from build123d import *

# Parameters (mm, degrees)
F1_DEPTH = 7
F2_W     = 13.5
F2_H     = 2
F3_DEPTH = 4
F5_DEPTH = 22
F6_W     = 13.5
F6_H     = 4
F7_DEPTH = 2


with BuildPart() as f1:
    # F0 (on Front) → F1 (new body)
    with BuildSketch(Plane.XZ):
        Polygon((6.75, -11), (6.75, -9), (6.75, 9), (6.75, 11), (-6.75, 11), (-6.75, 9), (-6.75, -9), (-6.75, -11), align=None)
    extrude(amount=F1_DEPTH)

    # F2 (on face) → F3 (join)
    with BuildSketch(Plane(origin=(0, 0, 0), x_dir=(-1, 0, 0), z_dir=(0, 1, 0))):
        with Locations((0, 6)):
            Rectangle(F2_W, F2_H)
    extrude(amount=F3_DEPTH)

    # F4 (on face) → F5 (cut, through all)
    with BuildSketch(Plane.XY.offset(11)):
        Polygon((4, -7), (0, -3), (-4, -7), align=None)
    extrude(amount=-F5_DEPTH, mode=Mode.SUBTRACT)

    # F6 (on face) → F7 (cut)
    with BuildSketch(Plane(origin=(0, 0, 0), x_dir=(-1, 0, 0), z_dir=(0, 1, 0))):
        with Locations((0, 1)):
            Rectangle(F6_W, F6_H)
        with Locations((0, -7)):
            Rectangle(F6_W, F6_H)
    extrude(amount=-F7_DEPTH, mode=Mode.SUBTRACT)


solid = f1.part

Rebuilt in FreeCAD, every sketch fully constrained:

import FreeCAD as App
import Part
import Sketcher


def add_polygon(sketch, points):
    """Adds a closed chain of lines whose ends are joined by coincident constraints."""
    first, n = sketch.GeometryCount, len(points)
    for a, b in zip(points, points[1:] + points[:1]):
        sketch.addGeometry(Part.LineSegment(App.Vector(*a, 0), App.Vector(*b, 0)), False)
    for i in range(n):
        sketch.addConstraint(Sketcher.Constraint("Coincident", first + i, 2, first + (i + 1) % n, 1))

doc = App.newDocument("Part")
body = doc.addObject("PartDesign::Body", "Body")

# Sketch on XZ plane
sketch1 = doc.addObject("Sketcher::SketchObject", "Sketch")
body.addObject(sketch1)
sketch1.AttachmentSupport = (doc.XZ_Plane, [""])
sketch1.MapMode = "FlatFace"
add_polygon(sketch1, [(7, -11), (7, 11), (-7, 11), (-7, -11)])  # lines 0-3
sketch1.addConstraint([
    Sketcher.Constraint("Vertical", 0),
    Sketcher.Constraint("Horizontal", 1),
    Sketcher.Constraint("Vertical", 2),
    Sketcher.Constraint("Horizontal", 3),
    Sketcher.Constraint("Symmetric", 0, 2, 2, 2, -1, 1),
    Sketcher.Constraint("DistanceY", 0, 1, 0, 2, 22.0),
    Sketcher.Constraint("DistanceX", 1, 2, 1, 1, 13.5),
])
pad1 = doc.addObject("PartDesign::Pad", "Pad")
body.addObject(pad1)
pad1.Profile = sketch1
pad1.Length = 7

# Sketch on XZ plane
sketch2 = doc.addObject("Sketcher::SketchObject", "Sketch001")
body.addObject(sketch2)
sketch2.AttachmentSupport = (doc.XZ_Plane, [""])
sketch2.MapMode = "FlatFace"
add_polygon(sketch2, [(6.8, 7), (6.8, 5), (-6.8, 5), (-6.8, 7)])  # lines 0-3
sketch2.addConstraint([
    Sketcher.Constraint("Vertical", 0),
    Sketcher.Constraint("Horizontal", 1),
    Sketcher.Constraint("Vertical", 2),
    Sketcher.Constraint("Horizontal", 3),
    Sketcher.Constraint("DistanceY", 0, 2, 0, 1, 2.0),
    Sketcher.Constraint("DistanceX", 1, 2, 1, 1, 13.5),
    Sketcher.Constraint("DistanceY", -1, 1, 0, 2, 5.0),
    Sketcher.Constraint("DistanceX", -1, 1, 0, 2, 6.75),
])
pad2 = doc.addObject("PartDesign::Pad", "Pad001")
body.addObject(pad2)
pad2.Profile = sketch2
pad2.Length = 4
pad2.Reversed = True

# Sketch on XY plane
sketch3 = doc.addObject("Sketcher::SketchObject", "Sketch002")
body.addObject(sketch3)
sketch3.AttachmentSupport = (doc.XY_Plane, [""])
sketch3.MapMode = "FlatFace"
sketch3.AttachmentOffset = App.Placement(App.Vector(0, 0, 11), App.Rotation())
add_polygon(sketch3, [(4, -7), (0, -3), (-4, -7)])  # lines 0-2
sketch3.addConstraint([
    Sketcher.Constraint("Horizontal", 2),
    Sketcher.Constraint("PointOnObject", 0, 2, -2),
    Sketcher.Constraint("Perpendicular", 0, 1),
    Sketcher.Constraint("Equal", 0, 1),
    Sketcher.Constraint("DistanceX", 2, 1, 2, 2, 8.0),
    Sketcher.Constraint("DistanceY", 0, 2, -1, 1, 3.0),
])
pocket1 = doc.addObject("PartDesign::Pocket", "Pocket")
body.addObject(pocket1)
pocket1.Profile = sketch3
pocket1.Type = "ThroughAll"

# Sketch on XZ plane
sketch4 = doc.addObject("Sketcher::SketchObject", "Sketch003")
body.addObject(sketch4)
sketch4.AttachmentSupport = (doc.XZ_Plane, [""])
sketch4.MapMode = "FlatFace"
add_polygon(sketch4, [(6.8, 3), (6.8, -1), (-6.8, -1), (-6.8, 3)])  # lines 0-3
add_polygon(sketch4, [(6.8, -5), (6.8, -9), (-6.8, -9), (-6.8, -5)])  # lines 4-7
sketch4.addConstraint([
    Sketcher.Constraint("Vertical", 0),
    Sketcher.Constraint("Horizontal", 1),
    Sketcher.Constraint("Vertical", 2),
    Sketcher.Constraint("Horizontal", 3),
    Sketcher.Constraint("Vertical", 4),
    Sketcher.Constraint("Horizontal", 5),
    Sketcher.Constraint("Vertical", 6),
    Sketcher.Constraint("Horizontal", 7),
    Sketcher.Constraint("Vertical", 3, 2, 4, 2),
    Sketcher.Constraint("Vertical", 2, 2, 5, 2),
    Sketcher.Constraint("Equal", 2, 4),
    Sketcher.Constraint("DistanceY", 0, 2, 0, 1, 4.0),
    Sketcher.Constraint("DistanceX", 1, 2, 1, 1, 13.5),
    Sketcher.Constraint("DistanceY", 0, 2, -1, 1, 1.0),
    Sketcher.Constraint("DistanceY", 4, 2, -1, 1, 9.0),
    Sketcher.Constraint("DistanceX", -1, 1, 0, 2, 6.75),
])
pocket2 = doc.addObject("PartDesign::Pocket", "Pocket001")
body.addObject(pocket2)
pocket2.Profile = sketch4
pocket2.Length = 2
pocket2.Reversed = True

doc.recompute()
